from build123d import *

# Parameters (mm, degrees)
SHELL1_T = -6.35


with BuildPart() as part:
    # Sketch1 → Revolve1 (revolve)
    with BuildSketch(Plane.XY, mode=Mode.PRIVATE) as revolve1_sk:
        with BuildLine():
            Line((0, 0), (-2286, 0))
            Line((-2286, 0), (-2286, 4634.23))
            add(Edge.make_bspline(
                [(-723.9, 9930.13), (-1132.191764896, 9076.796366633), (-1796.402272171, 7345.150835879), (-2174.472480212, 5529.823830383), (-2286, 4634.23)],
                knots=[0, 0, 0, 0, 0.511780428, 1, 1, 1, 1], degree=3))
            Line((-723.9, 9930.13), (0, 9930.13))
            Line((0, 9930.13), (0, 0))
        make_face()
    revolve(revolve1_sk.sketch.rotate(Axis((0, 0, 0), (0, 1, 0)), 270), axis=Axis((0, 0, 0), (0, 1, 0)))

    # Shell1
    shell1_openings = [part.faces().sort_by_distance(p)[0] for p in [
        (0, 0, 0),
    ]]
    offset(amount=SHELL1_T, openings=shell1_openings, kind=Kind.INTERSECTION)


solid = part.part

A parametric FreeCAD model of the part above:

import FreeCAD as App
import Part
import Sketcher
Q = App.Units.Quantity


def faces_at(feature, points):
    """Names of the faces that lie closest to the given points."""
    faces = feature.Shape.Faces
    near = lambda p: min(range(len(faces)), key=lambda i: faces[i].distToShape(Part.Vertex(*p))[0])
    return sorted({f"Face{near(p) + 1}" for p in points})

doc = App.newDocument("Part")
body = doc.addObject("PartDesign::Body", "Body")

# Sketch on XY plane
sketch1 = doc.addObject("Sketcher::SketchObject", "Sketch")
body.addObject(sketch1)
sketch1.AttachmentSupport = (doc.XY_Plane, [""])
sketch1.MapMode = "FlatFace"
sketch1.addGeometry(Part.LineSegment(App.Vector(-2286, 0, 0), App.Vector(0, 0, 0)), False)
sketch1.addGeometry(Part.LineSegment(App.Vector(0, 0, 0), App.Vector(0, 9930.13, 0)), False)
sketch1.addGeometry(Part.LineSegment(App.Vector(0, 9930.13, 0), App.Vector(-723.9, 9930.13, 0)), False)
sketch1.addGeometry(Part.BSplineCurve([App.Vector(-723.9, 9930.13, 0), App.Vector(-1132.191765, 9076.796367, 0), App.Vector(-1796.402272, 7345.150836, 0), App.Vector(-2174.47248, 5529.82383, 0), App.Vector(-2286, 4634.23, 0)], [4, 1, 4], [0, 0.511780428, 1], False, 3, [1, 1, 1, 1, 1], False), False)
sketch1.addGeometry(Part.LineSegment(App.Vector(-2286, 4634.23, 0), App.Vector(-2286, 0, 0)), False)
sketch1.addConstraint(Sketcher.Constraint("Block", 3))
sketch1.addConstraint(Sketcher.Constraint("Coincident", 0, 2, 1, 1))
sketch1.addConstraint(Sketcher.Constraint("Coincident", 1, 2, 2, 1))
sketch1.addConstraint(Sketcher.Constraint("Coincident", 2, 2, 3, 1))
sketch1.addConstraint(Sketcher.Constraint("Coincident", 3, 2, 4, 1))
sketch1.addConstraint(Sketcher.Constraint("Coincident", 4, 2, 0, 1))
sketch1.addConstraint(Sketcher.Constraint("Horizontal", 0))
sketch1.addConstraint(Sketcher.Constraint("Vertical", 1))
sketch1.addConstraint(Sketcher.Constraint("Horizontal", 2))
sketch1.addConstraint(Sketcher.Constraint("Vertical", 4))
sketch1.addConstraint(Sketcher.Constraint("Coincident", 0, 2, -1, 1))
revolution = doc.addObject("PartDesign::Revolution", "Revolution")
body.addObject(revolution)
revolution.Profile = sketch1
revolution.ReferenceAxis = (sketch1, ["V_Axis"])
revolution.Angle = 360
doc.recompute()

thickness = doc.addObject("PartDesign::Thickness", "Thickness")
body.addObject(thickness)
thickness.Base = (revolution, faces_at(revolution, [(0, 0, 0)]))
thickness.Value = Q("0.25 in")
thickness.Reversed = True
thickness.Join = "Intersection"

doc.recompute()
